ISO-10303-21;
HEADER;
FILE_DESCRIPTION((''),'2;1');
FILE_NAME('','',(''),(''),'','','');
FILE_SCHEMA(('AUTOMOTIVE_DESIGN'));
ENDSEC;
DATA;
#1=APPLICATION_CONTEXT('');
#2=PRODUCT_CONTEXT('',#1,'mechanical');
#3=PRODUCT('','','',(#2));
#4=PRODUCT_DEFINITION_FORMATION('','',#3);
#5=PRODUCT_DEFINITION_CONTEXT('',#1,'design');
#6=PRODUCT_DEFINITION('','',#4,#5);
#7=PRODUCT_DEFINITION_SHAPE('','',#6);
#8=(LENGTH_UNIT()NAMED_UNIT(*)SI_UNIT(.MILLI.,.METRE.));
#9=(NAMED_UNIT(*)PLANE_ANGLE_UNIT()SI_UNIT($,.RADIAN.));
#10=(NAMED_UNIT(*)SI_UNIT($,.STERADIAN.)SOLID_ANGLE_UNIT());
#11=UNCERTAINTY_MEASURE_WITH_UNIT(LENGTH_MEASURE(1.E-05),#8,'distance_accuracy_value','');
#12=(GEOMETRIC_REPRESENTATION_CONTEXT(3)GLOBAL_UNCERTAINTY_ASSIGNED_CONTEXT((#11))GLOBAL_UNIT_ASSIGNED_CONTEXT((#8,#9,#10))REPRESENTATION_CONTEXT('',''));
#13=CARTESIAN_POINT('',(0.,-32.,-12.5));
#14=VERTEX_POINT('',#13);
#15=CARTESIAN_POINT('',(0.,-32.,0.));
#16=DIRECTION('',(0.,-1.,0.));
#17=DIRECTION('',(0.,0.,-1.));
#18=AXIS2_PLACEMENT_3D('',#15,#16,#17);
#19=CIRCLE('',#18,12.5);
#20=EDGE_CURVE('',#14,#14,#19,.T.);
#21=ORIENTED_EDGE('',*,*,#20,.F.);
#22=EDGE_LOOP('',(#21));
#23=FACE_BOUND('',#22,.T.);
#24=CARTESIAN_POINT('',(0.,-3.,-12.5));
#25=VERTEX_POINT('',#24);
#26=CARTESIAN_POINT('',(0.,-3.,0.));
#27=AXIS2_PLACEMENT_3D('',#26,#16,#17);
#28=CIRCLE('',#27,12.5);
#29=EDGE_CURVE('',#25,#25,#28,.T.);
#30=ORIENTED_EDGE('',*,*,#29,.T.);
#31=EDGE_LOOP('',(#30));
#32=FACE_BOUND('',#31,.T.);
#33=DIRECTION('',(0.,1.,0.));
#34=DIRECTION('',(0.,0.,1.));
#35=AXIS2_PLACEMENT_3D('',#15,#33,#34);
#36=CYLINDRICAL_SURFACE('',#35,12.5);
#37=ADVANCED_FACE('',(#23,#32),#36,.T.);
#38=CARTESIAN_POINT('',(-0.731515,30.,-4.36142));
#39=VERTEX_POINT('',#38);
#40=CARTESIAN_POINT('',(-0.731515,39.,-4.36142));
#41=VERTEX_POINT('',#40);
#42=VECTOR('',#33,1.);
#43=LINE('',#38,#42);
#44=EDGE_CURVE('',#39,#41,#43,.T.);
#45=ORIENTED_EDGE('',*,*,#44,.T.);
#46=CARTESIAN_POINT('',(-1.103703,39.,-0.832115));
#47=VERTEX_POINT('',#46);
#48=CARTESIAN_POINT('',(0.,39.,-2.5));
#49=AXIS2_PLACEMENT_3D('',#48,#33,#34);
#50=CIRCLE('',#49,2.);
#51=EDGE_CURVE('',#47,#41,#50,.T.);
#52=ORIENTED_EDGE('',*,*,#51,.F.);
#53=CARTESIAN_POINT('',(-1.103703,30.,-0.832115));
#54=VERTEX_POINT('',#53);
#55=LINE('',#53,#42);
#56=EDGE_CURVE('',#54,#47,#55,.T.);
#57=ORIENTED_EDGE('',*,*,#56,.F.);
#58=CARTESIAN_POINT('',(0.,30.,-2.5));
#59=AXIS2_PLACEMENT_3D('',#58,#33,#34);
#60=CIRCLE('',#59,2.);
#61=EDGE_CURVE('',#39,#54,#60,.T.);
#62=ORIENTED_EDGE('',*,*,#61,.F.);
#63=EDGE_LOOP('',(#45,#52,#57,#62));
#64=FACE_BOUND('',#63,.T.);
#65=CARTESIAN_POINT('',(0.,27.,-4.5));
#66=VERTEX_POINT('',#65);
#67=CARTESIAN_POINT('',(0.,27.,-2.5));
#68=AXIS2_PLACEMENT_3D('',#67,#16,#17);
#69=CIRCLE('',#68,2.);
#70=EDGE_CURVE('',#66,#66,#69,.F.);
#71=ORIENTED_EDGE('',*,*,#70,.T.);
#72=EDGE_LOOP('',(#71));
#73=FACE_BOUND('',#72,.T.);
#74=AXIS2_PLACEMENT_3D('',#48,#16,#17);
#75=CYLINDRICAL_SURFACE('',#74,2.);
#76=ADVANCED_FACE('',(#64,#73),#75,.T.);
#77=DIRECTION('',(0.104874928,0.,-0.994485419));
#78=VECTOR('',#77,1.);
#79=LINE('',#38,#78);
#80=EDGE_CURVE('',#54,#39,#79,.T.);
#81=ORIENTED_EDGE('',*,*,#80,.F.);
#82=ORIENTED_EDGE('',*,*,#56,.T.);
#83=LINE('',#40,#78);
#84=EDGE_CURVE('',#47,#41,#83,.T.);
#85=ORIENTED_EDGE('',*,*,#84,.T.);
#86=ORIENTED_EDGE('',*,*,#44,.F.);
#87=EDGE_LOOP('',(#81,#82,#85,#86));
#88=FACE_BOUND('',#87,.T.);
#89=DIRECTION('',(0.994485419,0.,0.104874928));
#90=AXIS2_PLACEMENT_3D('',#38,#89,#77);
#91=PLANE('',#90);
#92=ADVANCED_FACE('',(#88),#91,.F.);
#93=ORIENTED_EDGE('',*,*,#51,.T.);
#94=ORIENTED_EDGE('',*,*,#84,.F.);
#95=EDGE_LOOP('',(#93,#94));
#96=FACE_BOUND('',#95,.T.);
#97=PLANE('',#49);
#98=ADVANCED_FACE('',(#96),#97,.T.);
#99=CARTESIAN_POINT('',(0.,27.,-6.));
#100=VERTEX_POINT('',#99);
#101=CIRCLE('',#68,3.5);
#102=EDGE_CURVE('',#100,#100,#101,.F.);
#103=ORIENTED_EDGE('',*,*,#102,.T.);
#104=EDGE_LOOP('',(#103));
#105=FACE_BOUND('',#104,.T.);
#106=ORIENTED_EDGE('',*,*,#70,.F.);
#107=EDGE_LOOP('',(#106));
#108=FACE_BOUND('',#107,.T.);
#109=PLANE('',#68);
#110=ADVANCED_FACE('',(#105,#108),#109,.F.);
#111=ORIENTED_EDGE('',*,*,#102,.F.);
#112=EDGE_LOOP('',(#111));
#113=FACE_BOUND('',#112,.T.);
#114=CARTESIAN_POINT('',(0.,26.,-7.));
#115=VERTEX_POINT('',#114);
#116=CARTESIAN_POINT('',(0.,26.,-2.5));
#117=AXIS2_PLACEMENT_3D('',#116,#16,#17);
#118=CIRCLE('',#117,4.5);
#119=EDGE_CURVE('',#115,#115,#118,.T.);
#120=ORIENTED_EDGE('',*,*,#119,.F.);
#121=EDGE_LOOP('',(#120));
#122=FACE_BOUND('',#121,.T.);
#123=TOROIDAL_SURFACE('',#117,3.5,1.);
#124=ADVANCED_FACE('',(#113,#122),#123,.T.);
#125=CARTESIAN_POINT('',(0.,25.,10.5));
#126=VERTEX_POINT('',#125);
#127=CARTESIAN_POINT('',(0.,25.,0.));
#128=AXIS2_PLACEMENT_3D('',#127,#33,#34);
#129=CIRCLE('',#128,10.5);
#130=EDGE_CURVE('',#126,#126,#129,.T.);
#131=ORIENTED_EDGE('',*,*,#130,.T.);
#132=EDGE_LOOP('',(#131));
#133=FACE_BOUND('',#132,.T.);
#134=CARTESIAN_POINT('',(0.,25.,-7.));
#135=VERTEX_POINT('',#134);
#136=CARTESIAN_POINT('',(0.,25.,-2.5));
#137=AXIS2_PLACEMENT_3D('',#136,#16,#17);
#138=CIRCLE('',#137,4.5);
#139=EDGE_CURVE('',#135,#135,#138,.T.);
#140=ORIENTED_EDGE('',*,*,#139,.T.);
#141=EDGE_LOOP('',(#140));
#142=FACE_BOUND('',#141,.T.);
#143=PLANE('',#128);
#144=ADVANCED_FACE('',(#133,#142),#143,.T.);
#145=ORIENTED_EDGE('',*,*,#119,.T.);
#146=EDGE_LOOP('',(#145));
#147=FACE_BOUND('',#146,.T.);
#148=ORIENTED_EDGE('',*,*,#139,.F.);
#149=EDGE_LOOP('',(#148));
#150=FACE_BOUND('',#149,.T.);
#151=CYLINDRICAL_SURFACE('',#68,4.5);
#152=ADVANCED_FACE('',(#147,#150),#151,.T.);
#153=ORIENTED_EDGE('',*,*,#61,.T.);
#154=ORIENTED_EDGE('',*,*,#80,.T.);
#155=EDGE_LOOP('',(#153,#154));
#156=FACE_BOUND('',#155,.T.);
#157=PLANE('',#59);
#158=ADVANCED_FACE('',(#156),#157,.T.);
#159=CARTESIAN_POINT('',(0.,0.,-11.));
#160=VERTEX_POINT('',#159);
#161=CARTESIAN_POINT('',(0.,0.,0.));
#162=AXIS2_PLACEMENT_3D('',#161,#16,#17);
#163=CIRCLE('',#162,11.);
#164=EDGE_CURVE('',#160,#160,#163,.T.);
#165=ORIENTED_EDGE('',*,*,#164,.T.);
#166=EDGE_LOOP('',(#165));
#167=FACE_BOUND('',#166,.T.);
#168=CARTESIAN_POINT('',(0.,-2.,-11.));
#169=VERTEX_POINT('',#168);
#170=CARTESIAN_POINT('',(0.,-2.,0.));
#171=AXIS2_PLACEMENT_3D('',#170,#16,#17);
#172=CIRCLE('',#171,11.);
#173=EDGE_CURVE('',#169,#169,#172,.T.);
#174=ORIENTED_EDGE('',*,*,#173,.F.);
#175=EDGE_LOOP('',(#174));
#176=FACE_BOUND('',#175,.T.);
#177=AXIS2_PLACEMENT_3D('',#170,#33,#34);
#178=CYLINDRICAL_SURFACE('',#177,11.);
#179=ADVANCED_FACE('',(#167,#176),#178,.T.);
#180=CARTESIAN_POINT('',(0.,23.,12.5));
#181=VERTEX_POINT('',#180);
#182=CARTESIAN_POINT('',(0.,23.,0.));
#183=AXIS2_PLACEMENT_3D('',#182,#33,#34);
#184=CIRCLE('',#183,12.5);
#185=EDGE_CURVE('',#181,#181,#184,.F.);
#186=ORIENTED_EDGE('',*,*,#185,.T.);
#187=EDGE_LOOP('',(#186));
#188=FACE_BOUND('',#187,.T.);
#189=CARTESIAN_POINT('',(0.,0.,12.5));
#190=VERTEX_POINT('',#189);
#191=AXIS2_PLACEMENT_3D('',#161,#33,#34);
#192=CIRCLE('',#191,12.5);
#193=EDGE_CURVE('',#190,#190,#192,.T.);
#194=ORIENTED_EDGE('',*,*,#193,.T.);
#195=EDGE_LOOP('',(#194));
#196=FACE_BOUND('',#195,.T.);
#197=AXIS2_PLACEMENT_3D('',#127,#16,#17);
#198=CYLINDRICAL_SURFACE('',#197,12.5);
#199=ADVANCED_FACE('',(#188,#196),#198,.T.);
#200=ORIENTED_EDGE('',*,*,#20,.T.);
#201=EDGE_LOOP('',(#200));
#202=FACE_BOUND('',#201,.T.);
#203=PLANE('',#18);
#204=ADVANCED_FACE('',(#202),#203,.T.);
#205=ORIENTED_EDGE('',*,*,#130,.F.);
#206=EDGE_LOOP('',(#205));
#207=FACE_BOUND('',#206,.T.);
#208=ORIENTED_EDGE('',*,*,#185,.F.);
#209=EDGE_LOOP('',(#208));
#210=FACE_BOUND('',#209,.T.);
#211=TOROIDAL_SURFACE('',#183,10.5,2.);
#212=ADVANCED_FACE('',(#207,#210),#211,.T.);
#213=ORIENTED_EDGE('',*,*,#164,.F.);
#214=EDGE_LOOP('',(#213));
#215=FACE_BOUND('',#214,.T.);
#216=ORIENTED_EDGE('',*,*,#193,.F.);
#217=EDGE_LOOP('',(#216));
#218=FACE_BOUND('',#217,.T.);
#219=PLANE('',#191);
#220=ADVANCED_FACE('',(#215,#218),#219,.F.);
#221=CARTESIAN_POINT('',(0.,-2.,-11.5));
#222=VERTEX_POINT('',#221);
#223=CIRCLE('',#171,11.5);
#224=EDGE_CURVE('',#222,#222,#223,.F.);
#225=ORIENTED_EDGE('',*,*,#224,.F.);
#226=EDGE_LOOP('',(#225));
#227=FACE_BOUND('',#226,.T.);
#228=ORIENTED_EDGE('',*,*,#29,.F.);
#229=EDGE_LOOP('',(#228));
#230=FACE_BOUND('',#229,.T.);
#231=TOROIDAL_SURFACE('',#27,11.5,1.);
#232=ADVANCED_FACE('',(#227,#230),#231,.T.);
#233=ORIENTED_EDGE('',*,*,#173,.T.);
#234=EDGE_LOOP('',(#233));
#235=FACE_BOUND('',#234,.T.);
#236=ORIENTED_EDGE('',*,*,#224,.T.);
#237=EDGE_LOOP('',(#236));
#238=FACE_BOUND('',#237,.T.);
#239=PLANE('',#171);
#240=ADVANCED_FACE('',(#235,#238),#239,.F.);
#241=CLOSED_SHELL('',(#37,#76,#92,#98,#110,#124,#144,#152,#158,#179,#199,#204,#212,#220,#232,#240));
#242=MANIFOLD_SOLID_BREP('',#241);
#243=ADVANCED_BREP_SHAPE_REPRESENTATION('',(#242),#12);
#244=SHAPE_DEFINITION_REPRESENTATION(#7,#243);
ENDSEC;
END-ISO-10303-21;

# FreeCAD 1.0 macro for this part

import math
import FreeCAD as App
import Part
import Sketcher
from FreeCAD import Vector
Q = App.Units.Quantity


def edges_at(feature, points):
    """Names of the edges that pass closest to the given points."""
    edges = feature.Shape.Edges
    near = lambda p: min(range(len(edges)), key=lambda i: edges[i].distToShape(Part.Vertex(*p))[0])
    return sorted({f"Edge{near(p) + 1}" for p in points})

doc = App.newDocument("Part")
body = doc.addObject("PartDesign::Body", "Body")

# Sketch on XZ plane
sketch1 = body.newObject("Sketcher::SketchObject", "Sketch")
sketch1.AttachmentSupport = (doc.getObject("XZ_Plane"), [""])
sketch1.MapMode = "FlatFace"
sketch1.addGeometry(Part.Circle(Vector(0, 0, 0), Vector(0, 0, 1), 12.5), False)
sketch1.addConstraint([
    Sketcher.Constraint("Coincident", 0, 3, -1, 1),
    Sketcher.Constraint("Diameter", 0, Q("25 mm")),
])
pad1 = body.newObject("PartDesign::Pad", "Pad")
pad1.Profile = sketch1
pad1.Length = 25
pad1.Reversed = True

# Sketch on XZ plane
sketch2 = body.newObject("Sketcher::SketchObject", "Sketch001")
sketch2.AttachmentSupport = (doc.getObject("XZ_Plane"), [""])
sketch2.MapMode = "FlatFace"
sketch2.addGeometry(Part.Circle(Vector(0, 0, 0), Vector(0, 0, 1), 11), False)
sketch2.addConstraint([
    Sketcher.Constraint("Coincident", 0, 3, -1, 1),
    Sketcher.Constraint("Diameter", 0, Q("22 mm")),
])
pad2 = body.newObject("PartDesign::Pad", "Pad001")
pad2.Profile = sketch2
pad2.Length = 2

# Sketch on XZ plane
sketch3 = body.newObject("Sketcher::SketchObject", "Sketch002")
sketch3.AttachmentSupport = (doc.getObject("XZ_Plane"), [""])
sketch3.MapMode = "FlatFace"
sketch3.AttachmentOffset = App.Placement(Vector(0, 0, 32), App.Rotation())
sketch3.addGeometry(Part.Circle(Vector(0, 0, 0), Vector(0, 0, 1), 12.5), False)
sketch3.addConstraint([
    Sketcher.Constraint("Coincident", 0, 3, -1, 1),
    Sketcher.Constraint("Diameter", 0, Q("25 mm")),
])
pad3 = body.newObject("PartDesign::Pad", "Pad002")
pad3.Profile = sketch3
pad3.Length = 30
pad3.Reversed = True

# Sketch on XZ plane
sketch4 = body.newObject("Sketcher::SketchObject", "Sketch003")
sketch4.AttachmentSupport = (doc.getObject("XZ_Plane"), [""])
sketch4.MapMode = "FlatFace"
sketch4.AttachmentOffset = App.Placement(Vector(0, 0, -25), App.Rotation())
sketch4.addGeometry(Part.Circle(Vector(0, -2.5, 0), Vector(0, 0, 1), 4.5), False)
sketch4.addConstraint([
    Sketcher.Constraint("PointOnObject", 0, 3, -2),
    Sketcher.Constraint("Diameter", 0, Q("9 mm")),
    Sketcher.Constraint("DistanceY", 0, 3, -1, 1, Q("2.5 mm")),
])
pad4 = body.newObject("PartDesign::Pad", "Pad003")
pad4.Profile = sketch4
pad4.Length = 2
pad4.Reversed = True
doc.recompute()

fillet = body.newObject("PartDesign::Fillet", "Fillet")
fillet.Base = (pad4, edges_at(pad4, [(0, 25, -12.5)]))
fillet.Radius = 2
doc.recompute()

fillet2 = body.newObject("PartDesign::Fillet", "Fillet001")
fillet2.Base = (fillet, edges_at(fillet, [(0, -2, -12.5)]))
fillet2.Radius = 1
doc.recompute()

fillet3 = body.newObject("PartDesign::Fillet", "Fillet002")
fillet3.Base = (fillet2, edges_at(fillet2, [(0, 27, 2)]))
fillet3.Radius = 1

# Sketch on XZ plane
sketch5 = body.newObject("Sketcher::SketchObject", "Sketch004")
sketch5.AttachmentSupport = (doc.getObject("XZ_Plane"), [""])
sketch5.MapMode = "FlatFace"
sketch5.AttachmentOffset = App.Placement(Vector(0, 0, -27), App.Rotation())
sketch5.addGeometry(Part.Circle(Vector(0, -2.5, 0), Vector(0, 0, 1), 2), False)
sketch5.addConstraint([
    Sketcher.Constraint("PointOnObject", 0, 3, -2),
    Sketcher.Constraint("Diameter", 0, Q("4 mm")),
    Sketcher.Constraint("DistanceY", 0, 3, -1, 1, Q("2.5 mm")),
])
pad5 = body.newObject("PartDesign::Pad", "Pad004")
pad5.Profile = sketch5
pad5.Length = 12
pad5.Reversed = True

# Sketch on XZ plane
sketch6 = body.newObject("Sketcher::SketchObject", "Sketch005")
sketch6.AttachmentSupport = (doc.getObject("XZ_Plane"), [""])
sketch6.MapMode = "FlatFace"
sketch6.AttachmentOffset = App.Placement(Vector(0, 0, -30), App.Rotation())
sketch6.addGeometry([
    Part.LineSegment(Vector(-1.103703, -0.832115, 0), Vector(-0.731515, -4.36142, 0)),
    Part.ArcOfCircle(Part.Circle(Vector(0, -2.5, 0), Vector(0, 0, 1), 2), math.radians(123.494138), math.radians(248.545783)),
], False)
sketch6.addConstraint([
    Sketcher.Constraint("Coincident", 0, 1, 1, 1),
    Sketcher.Constraint("Coincident", 1, 2, 0, 2),
    Sketcher.Constraint("PointOnObject", 1, 3, -2),
    Sketcher.Constraint("Radius", 1, Q("2 mm")),
    Sketcher.Constraint("DistanceY", 1, 3, -1, 1, Q("2.5 mm")),
    Sketcher.Constraint("DistanceY", 1, 2, -1, 1, Q("4.36142 mm")),
    Sketcher.Constraint("DistanceX", 0, 1, 1, 2, Q("0.372188 mm")),
])
pocket1 = body.newObject("PartDesign::Pocket", "Pocket")
pocket1.Profile = sketch6
pocket1.Length = 9

doc.recompute()
